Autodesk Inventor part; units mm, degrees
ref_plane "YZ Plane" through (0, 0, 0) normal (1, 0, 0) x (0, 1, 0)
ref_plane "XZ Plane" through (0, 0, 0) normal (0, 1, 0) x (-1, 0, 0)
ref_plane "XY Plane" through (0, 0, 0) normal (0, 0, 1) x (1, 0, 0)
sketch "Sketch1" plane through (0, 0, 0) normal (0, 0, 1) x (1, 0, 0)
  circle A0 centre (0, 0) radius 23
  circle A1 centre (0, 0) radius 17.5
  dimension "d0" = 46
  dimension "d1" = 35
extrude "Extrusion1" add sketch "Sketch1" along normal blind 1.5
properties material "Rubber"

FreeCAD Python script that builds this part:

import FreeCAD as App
import Part
import Sketcher
Q = App.Units.Quantity

doc = App.newDocument("Part")
body = doc.addObject("PartDesign::Body", "Body")

# Sketch on XY plane
sketch1 = doc.addObject("Sketcher::SketchObject", "Sketch")
body.addObject(sketch1)
sketch1.AttachmentSupport = (doc.XY_Plane, [""])
sketch1.MapMode = "FlatFace"
sketch1.addGeometry(Part.Circle(App.Vector(0, 0, 0), App.Vector(0, 0, 1), 23), False)
sketch1.addGeometry(Part.Circle(App.Vector(0, 0, 0), App.Vector(0, 0, 1), 18), False)
sketch1.addConstraint(Sketcher.Constraint("Coincident", 0, 3, -1, 1))
sketch1.addConstraint(Sketcher.Constraint("Coincident", 1, 3, -1, 1))
sketch1.addConstraint(Sketcher.Constraint("Diameter", 0, Q("46 mm")))
sketch1.addConstraint(Sketcher.Constraint("Diameter", 1, Q("35 mm")))
pad1 = doc.addObject("PartDesign::Pad", "Pad")
body.addObject(pad1)
pad1.Profile = sketch1
pad1.Length = 1.5

doc.recompute()
